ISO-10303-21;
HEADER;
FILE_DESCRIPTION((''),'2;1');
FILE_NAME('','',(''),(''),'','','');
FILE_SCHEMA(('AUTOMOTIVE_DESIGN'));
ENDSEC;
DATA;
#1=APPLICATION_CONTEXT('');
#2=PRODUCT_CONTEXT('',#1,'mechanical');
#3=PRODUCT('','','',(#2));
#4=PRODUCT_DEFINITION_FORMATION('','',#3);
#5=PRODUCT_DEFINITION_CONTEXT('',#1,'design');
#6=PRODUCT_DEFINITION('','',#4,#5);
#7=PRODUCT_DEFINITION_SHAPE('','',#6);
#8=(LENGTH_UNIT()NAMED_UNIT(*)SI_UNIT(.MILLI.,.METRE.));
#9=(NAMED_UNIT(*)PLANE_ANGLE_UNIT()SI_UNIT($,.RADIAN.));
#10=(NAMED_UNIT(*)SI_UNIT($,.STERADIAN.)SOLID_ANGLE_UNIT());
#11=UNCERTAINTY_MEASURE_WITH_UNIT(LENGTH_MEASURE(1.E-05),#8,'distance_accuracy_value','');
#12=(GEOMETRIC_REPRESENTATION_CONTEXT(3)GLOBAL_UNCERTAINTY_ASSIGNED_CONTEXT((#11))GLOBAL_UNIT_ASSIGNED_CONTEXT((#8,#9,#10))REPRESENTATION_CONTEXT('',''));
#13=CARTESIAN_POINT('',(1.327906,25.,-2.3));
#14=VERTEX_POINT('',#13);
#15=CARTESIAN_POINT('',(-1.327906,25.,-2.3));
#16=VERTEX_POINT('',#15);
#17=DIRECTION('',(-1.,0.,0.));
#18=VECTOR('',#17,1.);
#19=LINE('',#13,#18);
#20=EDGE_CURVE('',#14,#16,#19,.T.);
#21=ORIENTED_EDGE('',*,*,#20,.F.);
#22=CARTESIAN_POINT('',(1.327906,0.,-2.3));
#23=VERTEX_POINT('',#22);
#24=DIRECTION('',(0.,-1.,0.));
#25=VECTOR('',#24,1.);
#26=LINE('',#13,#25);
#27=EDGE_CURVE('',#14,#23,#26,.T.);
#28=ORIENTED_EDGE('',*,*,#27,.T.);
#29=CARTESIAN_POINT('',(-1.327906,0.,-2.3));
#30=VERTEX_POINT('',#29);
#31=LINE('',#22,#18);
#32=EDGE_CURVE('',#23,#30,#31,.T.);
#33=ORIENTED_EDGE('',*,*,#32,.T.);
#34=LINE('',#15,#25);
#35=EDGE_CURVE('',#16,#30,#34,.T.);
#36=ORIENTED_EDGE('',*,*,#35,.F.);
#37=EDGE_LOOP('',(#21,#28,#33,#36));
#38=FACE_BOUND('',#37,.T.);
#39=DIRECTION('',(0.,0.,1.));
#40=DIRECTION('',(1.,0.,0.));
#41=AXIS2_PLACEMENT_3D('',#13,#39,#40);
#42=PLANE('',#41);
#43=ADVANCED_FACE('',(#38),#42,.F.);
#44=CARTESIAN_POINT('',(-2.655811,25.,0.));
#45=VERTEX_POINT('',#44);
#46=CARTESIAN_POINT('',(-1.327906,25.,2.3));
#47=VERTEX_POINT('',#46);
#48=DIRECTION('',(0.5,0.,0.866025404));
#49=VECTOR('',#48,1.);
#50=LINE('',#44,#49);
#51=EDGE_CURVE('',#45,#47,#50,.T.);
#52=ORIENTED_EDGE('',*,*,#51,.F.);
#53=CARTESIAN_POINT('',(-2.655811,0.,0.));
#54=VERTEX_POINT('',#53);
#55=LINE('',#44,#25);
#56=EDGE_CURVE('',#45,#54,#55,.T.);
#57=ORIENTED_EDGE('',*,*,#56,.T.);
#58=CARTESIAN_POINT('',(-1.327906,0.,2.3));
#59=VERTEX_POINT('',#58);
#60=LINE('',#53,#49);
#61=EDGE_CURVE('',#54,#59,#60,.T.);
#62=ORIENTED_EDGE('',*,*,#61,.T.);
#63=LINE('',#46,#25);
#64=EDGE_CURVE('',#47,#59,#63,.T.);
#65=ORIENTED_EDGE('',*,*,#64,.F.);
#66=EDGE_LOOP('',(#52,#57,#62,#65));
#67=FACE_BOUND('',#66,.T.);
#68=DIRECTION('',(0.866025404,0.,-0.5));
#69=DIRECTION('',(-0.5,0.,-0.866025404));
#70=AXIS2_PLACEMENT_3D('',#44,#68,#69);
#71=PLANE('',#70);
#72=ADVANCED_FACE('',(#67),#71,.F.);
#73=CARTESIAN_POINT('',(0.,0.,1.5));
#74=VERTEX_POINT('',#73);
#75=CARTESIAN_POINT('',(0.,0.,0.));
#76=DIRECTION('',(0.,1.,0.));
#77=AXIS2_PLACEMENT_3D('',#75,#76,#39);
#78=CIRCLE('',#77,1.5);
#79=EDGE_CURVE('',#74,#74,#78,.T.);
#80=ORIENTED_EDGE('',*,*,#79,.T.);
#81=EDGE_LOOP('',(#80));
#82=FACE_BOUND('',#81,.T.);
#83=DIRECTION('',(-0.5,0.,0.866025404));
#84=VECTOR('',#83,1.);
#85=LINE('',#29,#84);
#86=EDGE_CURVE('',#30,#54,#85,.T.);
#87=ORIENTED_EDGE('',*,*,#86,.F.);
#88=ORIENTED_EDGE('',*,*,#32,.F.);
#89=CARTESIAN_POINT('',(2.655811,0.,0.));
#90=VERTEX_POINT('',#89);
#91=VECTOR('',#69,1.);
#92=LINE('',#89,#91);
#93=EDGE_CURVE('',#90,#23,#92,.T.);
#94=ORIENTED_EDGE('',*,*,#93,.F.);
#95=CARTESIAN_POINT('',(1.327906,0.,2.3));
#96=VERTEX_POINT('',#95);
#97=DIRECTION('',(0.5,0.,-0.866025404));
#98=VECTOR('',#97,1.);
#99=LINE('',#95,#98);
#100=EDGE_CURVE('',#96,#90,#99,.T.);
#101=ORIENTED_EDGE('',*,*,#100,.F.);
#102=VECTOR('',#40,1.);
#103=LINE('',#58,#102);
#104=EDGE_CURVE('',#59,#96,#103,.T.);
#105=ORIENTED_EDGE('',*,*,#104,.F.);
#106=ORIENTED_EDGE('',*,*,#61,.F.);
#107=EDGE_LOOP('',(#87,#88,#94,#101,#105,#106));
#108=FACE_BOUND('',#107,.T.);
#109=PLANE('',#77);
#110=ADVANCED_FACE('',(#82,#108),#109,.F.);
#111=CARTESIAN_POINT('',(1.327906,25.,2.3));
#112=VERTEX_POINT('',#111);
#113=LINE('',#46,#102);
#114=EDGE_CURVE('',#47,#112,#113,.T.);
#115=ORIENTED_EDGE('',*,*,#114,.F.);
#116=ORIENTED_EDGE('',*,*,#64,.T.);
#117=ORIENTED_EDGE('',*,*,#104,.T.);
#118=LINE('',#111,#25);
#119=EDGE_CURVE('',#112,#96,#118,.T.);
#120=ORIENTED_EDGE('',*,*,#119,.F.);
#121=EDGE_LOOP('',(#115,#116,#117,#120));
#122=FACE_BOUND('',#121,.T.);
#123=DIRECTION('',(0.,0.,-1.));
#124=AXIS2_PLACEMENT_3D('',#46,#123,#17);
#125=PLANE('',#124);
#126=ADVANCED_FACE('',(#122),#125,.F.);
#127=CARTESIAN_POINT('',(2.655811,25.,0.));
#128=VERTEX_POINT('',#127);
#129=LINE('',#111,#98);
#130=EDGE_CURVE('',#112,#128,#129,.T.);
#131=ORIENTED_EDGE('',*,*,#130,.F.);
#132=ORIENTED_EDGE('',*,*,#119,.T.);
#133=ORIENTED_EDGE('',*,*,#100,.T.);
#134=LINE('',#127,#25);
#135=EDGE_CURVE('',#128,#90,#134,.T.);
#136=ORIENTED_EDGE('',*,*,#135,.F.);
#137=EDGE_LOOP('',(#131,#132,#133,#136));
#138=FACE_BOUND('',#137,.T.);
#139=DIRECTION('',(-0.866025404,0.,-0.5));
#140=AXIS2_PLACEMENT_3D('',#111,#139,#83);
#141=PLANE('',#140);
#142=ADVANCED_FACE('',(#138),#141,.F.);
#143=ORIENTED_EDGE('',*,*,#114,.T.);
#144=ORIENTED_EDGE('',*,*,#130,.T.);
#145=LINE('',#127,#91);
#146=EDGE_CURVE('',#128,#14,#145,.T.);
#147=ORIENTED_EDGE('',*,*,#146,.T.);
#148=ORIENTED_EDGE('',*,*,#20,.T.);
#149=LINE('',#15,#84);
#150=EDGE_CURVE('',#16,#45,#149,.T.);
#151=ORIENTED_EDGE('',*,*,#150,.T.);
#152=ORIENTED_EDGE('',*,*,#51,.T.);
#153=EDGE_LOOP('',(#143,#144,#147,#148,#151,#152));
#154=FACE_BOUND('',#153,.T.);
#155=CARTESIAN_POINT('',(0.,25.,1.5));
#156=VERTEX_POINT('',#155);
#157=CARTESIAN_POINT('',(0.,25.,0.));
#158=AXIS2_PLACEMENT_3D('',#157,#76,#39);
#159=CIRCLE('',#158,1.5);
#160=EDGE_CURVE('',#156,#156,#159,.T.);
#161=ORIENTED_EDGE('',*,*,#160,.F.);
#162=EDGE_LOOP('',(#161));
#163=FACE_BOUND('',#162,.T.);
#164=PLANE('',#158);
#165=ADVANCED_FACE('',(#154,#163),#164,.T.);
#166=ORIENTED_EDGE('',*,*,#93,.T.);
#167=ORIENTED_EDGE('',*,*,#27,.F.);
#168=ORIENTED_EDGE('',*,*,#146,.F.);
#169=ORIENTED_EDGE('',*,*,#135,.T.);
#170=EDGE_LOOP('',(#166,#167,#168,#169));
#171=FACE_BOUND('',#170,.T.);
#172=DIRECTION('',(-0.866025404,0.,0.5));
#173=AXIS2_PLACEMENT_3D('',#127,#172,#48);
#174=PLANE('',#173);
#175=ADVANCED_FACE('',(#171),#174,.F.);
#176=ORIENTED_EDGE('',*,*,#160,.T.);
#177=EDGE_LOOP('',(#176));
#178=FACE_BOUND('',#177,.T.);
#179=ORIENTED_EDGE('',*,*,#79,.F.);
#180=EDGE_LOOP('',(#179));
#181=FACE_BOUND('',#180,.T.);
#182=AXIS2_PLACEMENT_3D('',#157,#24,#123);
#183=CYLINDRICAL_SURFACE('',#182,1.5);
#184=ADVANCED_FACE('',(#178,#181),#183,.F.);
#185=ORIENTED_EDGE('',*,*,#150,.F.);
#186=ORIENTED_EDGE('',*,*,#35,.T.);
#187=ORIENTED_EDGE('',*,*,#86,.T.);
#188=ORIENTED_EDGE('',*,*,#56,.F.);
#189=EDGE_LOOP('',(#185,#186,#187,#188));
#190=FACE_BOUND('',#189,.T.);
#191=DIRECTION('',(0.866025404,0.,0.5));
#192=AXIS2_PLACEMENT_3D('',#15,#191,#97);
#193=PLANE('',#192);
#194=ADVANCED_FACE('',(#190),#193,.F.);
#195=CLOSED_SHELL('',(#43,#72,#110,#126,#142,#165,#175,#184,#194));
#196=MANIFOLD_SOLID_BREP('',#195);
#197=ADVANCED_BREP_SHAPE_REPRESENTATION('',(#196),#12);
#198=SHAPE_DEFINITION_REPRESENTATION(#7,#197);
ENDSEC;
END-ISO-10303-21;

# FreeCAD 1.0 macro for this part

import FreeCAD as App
import Part
import Sketcher
from FreeCAD import Vector
Q = App.Units.Quantity


def add_polygon(sketch, points):
    """Adds a closed chain of lines whose ends are joined by coincident constraints."""
    first, n = sketch.GeometryCount, len(points)
    for a, b in zip(points, points[1:] + points[:1]):
        sketch.addGeometry(Part.LineSegment(App.Vector(*a, 0), App.Vector(*b, 0)), False)
    for i in range(n):
        sketch.addConstraint(Sketcher.Constraint("Coincident", first + i, 2, first + (i + 1) % n, 1))

doc = App.newDocument("Part")
params = doc.addObject("Spreadsheet::Sheet", "Params")
for row, (alias, value) in enumerate([
    ("sketch1_diameter", "3 mm"),
    ("pad1_length", "25 mm"),
], start=1):
    params.set(f"A{row}", alias)
    params.set(f"B{row}", "=" + value)
    params.setAlias(f"B{row}", alias)

body = doc.addObject("PartDesign::Body", "Body")

sketch1 = doc.addObject("Sketcher::SketchObject", "Sketch")
body.addObject(sketch1)
sketch1.AttachmentSupport = (doc.XZ_Plane, [""])
sketch1.MapMode = "FlatFace"
add_polygon(sketch1, [(2.7, 0), (1.3, -2.3), (-1.3, -2.3), (-2.7, 0), (-1.3, 2.3), (1.3, 2.3)])
sketch1.addGeometry(Part.Circle(Vector(0, 0, 0), Vector(0, 0, 1), 1.5), False)
sketch1.addConstraint(Sketcher.Constraint("Horizontal", 1))
sketch1.addConstraint(Sketcher.Constraint("Horizontal", 4))
sketch1.addConstraint(Sketcher.Constraint("Coincident", 6, 3, -1, 1))
sketch1.addConstraint(Sketcher.Constraint("Symmetric", 0, 2, 3, 2, -1, 1))
sketch1.addConstraint(Sketcher.Constraint("Symmetric", 2, 2, 5, 2, -1, 1))
sketch1.addConstraint(Sketcher.Constraint("PointOnObject", 2, 2, -1))
sketch1.addConstraint(Sketcher.Constraint("Parallel", 2, 5))
sketch1.addConstraint(Sketcher.Constraint("Vertical", 1, 2, 3, 2))
sketch1.addConstraint(Sketcher.Constraint("Diameter", 6, Q("3 mm")))
sketch1.addConstraint(Sketcher.Constraint("Angle", 0, Q("-120 deg")))
sketch1.addConstraint(Sketcher.Constraint("DistanceY", 0, 2, -1, 1, Q("2.3 mm")))
sketch1.addConstraint(Sketcher.Constraint("DistanceX", 1, 2, 1, 1, Q("2.655811 mm")))
sketch1.setExpression("Constraints[14]", "Params.sketch1_diameter")
pad1 = doc.addObject("PartDesign::Pad", "Pad")
body.addObject(pad1)
pad1.Profile = sketch1
pad1.setExpression("Length", "Params.pad1_length")
pad1.Reversed = True

doc.recompute()
